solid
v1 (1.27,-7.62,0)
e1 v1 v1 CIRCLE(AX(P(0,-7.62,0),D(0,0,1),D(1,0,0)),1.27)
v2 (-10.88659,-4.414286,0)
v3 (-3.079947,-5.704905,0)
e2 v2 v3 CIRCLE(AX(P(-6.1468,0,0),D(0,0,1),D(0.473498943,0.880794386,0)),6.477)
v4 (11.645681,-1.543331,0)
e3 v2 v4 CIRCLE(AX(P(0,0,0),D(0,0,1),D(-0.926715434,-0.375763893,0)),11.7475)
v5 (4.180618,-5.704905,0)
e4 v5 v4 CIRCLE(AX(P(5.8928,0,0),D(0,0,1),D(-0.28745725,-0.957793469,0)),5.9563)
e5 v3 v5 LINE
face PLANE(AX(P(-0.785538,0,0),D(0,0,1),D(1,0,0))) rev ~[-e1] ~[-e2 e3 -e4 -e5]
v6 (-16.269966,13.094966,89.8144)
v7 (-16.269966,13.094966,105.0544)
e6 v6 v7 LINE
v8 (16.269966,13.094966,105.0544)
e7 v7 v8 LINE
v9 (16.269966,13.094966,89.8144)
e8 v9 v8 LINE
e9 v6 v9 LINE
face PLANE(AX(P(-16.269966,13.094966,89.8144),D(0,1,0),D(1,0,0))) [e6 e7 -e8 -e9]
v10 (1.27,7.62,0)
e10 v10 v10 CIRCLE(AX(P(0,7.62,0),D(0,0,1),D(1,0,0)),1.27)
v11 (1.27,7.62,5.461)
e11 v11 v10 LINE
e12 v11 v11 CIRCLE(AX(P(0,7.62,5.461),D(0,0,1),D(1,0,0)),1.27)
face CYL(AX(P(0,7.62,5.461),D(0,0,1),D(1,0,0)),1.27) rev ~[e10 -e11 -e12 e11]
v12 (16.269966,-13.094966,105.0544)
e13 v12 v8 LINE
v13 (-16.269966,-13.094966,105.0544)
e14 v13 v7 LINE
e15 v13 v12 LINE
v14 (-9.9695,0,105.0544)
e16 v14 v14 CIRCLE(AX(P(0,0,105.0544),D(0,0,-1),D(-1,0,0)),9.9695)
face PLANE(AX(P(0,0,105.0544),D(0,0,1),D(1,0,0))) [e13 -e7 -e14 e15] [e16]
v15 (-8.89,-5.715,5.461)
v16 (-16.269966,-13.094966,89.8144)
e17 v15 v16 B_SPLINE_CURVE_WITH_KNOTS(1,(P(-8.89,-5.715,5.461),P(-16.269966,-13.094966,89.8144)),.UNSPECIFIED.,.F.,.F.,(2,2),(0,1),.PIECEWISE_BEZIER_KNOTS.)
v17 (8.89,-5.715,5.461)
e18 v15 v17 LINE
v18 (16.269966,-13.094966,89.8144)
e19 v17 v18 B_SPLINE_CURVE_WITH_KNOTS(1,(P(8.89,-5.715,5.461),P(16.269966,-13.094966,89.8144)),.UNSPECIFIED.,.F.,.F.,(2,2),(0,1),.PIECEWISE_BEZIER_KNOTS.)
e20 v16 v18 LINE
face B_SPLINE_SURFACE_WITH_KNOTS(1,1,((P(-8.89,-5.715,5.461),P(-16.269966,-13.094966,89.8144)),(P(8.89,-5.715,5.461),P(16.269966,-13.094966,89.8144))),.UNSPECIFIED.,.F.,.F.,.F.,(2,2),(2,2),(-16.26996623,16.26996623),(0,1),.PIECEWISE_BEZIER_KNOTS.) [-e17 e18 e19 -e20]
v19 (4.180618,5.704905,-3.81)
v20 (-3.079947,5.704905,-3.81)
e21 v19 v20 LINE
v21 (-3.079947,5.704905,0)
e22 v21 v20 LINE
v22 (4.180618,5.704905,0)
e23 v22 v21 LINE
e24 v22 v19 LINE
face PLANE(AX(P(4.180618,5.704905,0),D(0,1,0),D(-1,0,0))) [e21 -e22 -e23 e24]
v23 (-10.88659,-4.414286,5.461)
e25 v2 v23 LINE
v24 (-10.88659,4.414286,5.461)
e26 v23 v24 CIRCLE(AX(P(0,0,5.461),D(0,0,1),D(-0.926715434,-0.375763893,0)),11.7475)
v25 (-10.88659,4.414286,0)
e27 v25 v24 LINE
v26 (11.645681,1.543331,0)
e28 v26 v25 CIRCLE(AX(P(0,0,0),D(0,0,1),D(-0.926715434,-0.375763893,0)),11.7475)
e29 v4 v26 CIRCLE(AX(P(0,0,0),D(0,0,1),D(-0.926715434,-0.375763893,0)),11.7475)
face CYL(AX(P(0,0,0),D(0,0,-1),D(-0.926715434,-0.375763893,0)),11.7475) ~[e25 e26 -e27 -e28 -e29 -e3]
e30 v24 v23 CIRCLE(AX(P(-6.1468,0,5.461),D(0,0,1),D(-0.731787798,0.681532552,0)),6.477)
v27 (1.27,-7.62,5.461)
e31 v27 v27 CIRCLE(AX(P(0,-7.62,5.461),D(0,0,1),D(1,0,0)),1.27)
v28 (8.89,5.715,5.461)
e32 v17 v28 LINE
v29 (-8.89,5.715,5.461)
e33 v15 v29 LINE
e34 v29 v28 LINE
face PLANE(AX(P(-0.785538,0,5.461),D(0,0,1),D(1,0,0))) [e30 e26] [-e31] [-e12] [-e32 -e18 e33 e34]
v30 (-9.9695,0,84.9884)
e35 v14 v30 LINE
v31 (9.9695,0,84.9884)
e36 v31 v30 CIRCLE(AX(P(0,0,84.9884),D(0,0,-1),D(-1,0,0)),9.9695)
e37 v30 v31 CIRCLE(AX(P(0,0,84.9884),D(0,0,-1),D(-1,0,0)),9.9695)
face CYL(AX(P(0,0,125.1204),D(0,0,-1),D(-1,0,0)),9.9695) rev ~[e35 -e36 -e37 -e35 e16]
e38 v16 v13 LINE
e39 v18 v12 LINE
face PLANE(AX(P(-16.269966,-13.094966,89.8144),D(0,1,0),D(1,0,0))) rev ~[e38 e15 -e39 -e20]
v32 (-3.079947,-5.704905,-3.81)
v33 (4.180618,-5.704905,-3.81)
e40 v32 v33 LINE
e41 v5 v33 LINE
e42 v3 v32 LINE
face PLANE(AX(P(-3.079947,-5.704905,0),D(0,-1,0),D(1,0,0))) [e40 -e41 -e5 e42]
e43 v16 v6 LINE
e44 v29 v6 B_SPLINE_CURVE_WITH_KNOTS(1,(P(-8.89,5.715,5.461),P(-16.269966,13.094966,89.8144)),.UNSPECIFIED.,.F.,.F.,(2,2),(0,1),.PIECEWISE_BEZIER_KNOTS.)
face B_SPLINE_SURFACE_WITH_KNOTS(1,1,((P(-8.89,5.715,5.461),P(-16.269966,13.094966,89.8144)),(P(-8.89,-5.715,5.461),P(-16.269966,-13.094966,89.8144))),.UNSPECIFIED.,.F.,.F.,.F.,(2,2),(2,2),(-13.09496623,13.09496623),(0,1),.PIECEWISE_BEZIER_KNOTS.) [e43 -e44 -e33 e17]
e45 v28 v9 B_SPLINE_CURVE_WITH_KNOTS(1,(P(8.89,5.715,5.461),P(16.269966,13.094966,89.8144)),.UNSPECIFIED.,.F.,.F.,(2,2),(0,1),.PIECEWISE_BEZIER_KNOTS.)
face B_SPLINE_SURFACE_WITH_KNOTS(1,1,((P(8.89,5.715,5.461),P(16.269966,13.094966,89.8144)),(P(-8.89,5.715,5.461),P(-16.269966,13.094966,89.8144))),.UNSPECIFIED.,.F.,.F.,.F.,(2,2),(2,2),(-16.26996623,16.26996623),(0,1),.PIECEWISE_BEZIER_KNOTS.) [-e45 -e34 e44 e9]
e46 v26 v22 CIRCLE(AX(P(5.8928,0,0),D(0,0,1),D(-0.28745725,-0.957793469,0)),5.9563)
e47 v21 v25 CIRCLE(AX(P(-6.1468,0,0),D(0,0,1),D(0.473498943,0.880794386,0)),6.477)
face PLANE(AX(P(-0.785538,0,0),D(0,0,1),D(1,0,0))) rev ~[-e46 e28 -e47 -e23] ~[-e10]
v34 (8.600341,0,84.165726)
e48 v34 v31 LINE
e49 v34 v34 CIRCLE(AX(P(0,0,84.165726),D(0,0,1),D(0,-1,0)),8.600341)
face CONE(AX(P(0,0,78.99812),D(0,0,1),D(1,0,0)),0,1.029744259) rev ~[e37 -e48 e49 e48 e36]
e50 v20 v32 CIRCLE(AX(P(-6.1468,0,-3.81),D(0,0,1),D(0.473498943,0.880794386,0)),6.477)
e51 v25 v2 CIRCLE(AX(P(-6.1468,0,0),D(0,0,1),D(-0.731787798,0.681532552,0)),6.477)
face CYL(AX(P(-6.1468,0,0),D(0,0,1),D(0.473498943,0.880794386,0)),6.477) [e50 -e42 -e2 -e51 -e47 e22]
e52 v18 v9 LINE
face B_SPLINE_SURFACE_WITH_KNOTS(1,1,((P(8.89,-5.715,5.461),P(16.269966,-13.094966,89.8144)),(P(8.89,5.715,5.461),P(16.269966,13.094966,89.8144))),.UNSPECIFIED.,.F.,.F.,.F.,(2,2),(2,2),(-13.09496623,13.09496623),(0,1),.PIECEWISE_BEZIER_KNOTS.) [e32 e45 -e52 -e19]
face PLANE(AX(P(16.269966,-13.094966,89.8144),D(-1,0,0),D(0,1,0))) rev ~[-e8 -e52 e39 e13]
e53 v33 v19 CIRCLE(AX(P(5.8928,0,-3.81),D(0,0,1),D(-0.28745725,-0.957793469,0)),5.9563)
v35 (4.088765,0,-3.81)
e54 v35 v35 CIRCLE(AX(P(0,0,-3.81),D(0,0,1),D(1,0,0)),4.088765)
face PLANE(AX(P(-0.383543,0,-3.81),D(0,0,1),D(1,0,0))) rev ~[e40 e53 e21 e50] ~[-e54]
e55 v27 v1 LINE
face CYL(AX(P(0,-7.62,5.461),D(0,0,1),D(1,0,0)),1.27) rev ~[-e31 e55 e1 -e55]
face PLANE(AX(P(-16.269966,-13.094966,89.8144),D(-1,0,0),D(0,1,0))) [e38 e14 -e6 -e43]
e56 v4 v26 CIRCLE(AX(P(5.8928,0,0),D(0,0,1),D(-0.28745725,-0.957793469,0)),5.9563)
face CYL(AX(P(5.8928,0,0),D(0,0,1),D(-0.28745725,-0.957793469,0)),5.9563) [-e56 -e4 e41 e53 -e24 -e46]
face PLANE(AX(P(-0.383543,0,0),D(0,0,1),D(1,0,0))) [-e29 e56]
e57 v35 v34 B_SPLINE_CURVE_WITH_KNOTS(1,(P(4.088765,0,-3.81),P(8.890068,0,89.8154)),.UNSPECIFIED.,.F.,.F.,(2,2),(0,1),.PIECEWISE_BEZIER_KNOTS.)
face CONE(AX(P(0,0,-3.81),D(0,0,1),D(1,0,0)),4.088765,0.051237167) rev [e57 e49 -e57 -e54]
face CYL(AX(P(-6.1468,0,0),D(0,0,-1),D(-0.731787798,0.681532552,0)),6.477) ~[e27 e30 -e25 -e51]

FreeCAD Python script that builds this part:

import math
import FreeCAD as App
import Part
import Sketcher
from FreeCAD import Vector
Q = App.Units.Quantity


def add_polygon(sketch, points):
    """Adds a closed chain of lines whose ends are joined by coincident constraints."""
    first, n = sketch.GeometryCount, len(points)
    for a, b in zip(points, points[1:] + points[:1]):
        sketch.addGeometry(Part.LineSegment(App.Vector(*a, 0), App.Vector(*b, 0)), False)
    for i in range(n):
        sketch.addConstraint(Sketcher.Constraint("Coincident", first + i, 2, first + (i + 1) % n, 1))

doc = App.newDocument("Part")
params = doc.addObject("Spreadsheet::Sheet", "Params")
for row, (alias, value) in enumerate([
    ("sketch1_radius", "0.255 in"),
    ("pad1_length", "0.15 in"),
    ("sketch2_radius", "0.255 in"),
    ("pad2_length", "0.215 in"),
    ("sketch3_diameter", "0.1 in"),
    ("sketch4_width", "0.7 in"),
    ("sketch4_height", "0.45 in"),
    ("pad3_length", "3.321 in"),
    ("pad3_taper", "5 deg"),
    ("pocket2_length", "93.6254 mm"),
    ("pocket2_taper", "2.935673 deg"),
    ("pad4_length", "0.6 in"),
    ("sketch7_diameter", "0.785 in"),
    ("hole_diameter", "0.785 in"),
    ("hole_depth", "0.79 in"),
], start=1):
    params.set(f"A{row}", alias)
    params.set(f"B{row}", "=" + value)
    params.setAlias(f"B{row}", alias)

body = doc.addObject("PartDesign::Body", "Body")

# Sketch on XY plane
sketch1 = doc.addObject("Sketcher::SketchObject", "Sketch")
body.addObject(sketch1)
sketch1.AttachmentSupport = (doc.XY_Plane, [""])
sketch1.MapMode = "FlatFace"
sketch1.addGeometry(Part.LineSegment(Vector(4, 6, 0), Vector(-3, 6, 0)), False)
sketch1.addGeometry(Part.ArcOfCircle(Part.Circle(Vector(-6, 0, 0), Vector(0, 0, 1), 6), math.radians(62), math.radians(298)), False)
sketch1.addGeometry(Part.LineSegment(Vector(-3, -6, 0), Vector(4, -6, 0)), False)
sketch1.addGeometry(Part.ArcOfCircle(Part.Circle(Vector(6, 0, 0), Vector(0, 0, 1), 6), math.radians(-107), math.radians(107)), False)
sketch1.addConstraint(Sketcher.Constraint("Coincident", 0, 2, 1, 1))
sketch1.addConstraint(Sketcher.Constraint("Coincident", 1, 2, 2, 1))
sketch1.addConstraint(Sketcher.Constraint("Coincident", 2, 2, 3, 1))
sketch1.addConstraint(Sketcher.Constraint("Coincident", 3, 2, 0, 1))
sketch1.addConstraint(Sketcher.Constraint("Horizontal", 0))
sketch1.addConstraint(Sketcher.Constraint("Horizontal", 2))
sketch1.addConstraint(Sketcher.Constraint("Symmetric", 0, 2, 1, 2, -1))
sketch1.addConstraint(Sketcher.Constraint("PointOnObject", 3, 3, -1))
sketch1.addConstraint(Sketcher.Constraint("Radius", 1, Q("0.255 in")))
sketch1.addConstraint(Sketcher.Constraint("Radius", 3, Q("0.2345 in")))
sketch1.addConstraint(Sketcher.Constraint("DistanceX", 1, 3, -1, 1, Q("0.242 in")))
sketch1.addConstraint(Sketcher.Constraint("DistanceX", -1, 1, 3, 3, Q("0.232 in")))
sketch1.addConstraint(Sketcher.Constraint("DistanceX", 0, 2, 0, 1, Q("7.260566 mm")))
sketch1.setExpression("Constraints[8]", "Params.sketch1_radius")
pad1 = doc.addObject("PartDesign::Pad", "Pad")
body.addObject(pad1)
pad1.Profile = sketch1
pad1.setExpression("Length", "Params.pad1_length")
pad1.Reversed = True

# Sketch on XY plane
sketch2 = doc.addObject("Sketcher::SketchObject", "Sketch001")
body.addObject(sketch2)
sketch2.AttachmentSupport = (doc.XY_Plane, [""])
sketch2.MapMode = "FlatFace"
sketch2.addGeometry(Part.ArcOfCircle(Part.Circle(Vector(-6, 0, 0), Vector(0, 0, 1), 6), math.radians(137), math.radians(223)), False)
sketch2.addGeometry(Part.ArcOfCircle(Part.Circle(Vector(0, 0, 0), Vector(0, 0, 1), 12), math.radians(-158), math.radians(158)), False)
sketch2.addConstraint(Sketcher.Constraint("Coincident", 0, 1, 1, 2))
sketch2.addConstraint(Sketcher.Constraint("Coincident", 1, 1, 0, 2))
sketch2.addConstraint(Sketcher.Constraint("Coincident", 1, 3, -1, 1))
sketch2.addConstraint(Sketcher.Constraint("PointOnObject", 0, 3, -1))
sketch2.addConstraint(Sketcher.Constraint("Radius", 0, Q("0.255 in")))
sketch2.addConstraint(Sketcher.Constraint("Radius", 1, Q("0.4625 in")))
sketch2.addConstraint(Sketcher.Constraint("DistanceX", 0, 3, -1, 1, Q("0.242 in")))
sketch2.setExpression("Constraints[4]", "Params.sketch2_radius")
pad2 = doc.addObject("PartDesign::Pad", "Pad001")
body.addObject(pad2)
pad2.Profile = sketch2
pad2.setExpression("Length", "Params.pad2_length")

# Sketch on XY plane
sketch3 = doc.addObject("Sketcher::SketchObject", "Sketch002")
body.addObject(sketch3)
sketch3.AttachmentSupport = (doc.XY_Plane, [""])
sketch3.MapMode = "FlatFace"
sketch3.AttachmentOffset = App.Placement(Vector(0, 0, 0.215 * 25.4), App.Rotation())
sketch3.addGeometry(Part.Circle(Vector(0, -7.6, 0), Vector(0, 0, 1), 1.3), False)
sketch3.addGeometry(Part.Circle(Vector(0, 7.6, 0), Vector(0, 0, 1), 1.3), False)
sketch3.addConstraint(Sketcher.Constraint("Equal", 0, 1))
sketch3.addConstraint(Sketcher.Constraint("Symmetric", 0, 3, 1, 3, -1, 1))
sketch3.addConstraint(Sketcher.Constraint("PointOnObject", 0, 3, -2))
sketch3.addConstraint(Sketcher.Constraint("Diameter", 0, Q("0.1 in")))
sketch3.addConstraint(Sketcher.Constraint("DistanceY", 0, 3, -1, 1, Q("0.3 in")))
sketch3.setExpression("Constraints[3]", "Params.sketch3_diameter")
pocket1 = doc.addObject("PartDesign::Pocket", "Pocket")
body.addObject(pocket1)
pocket1.Profile = sketch3
pocket1.Type = "ThroughAll"

# Sketch on XY plane
sketch4 = doc.addObject("Sketcher::SketchObject", "Sketch003")
body.addObject(sketch4)
sketch4.AttachmentSupport = (doc.XY_Plane, [""])
sketch4.MapMode = "FlatFace"
sketch4.AttachmentOffset = App.Placement(Vector(0, 0, 0.215 * 25.4), App.Rotation())
add_polygon(sketch4, [(-9, 6), (-9, -6), (9, -6), (9, 6)])  # lines 0-3
sketch4.addConstraint(Sketcher.Constraint("Vertical", 0))
sketch4.addConstraint(Sketcher.Constraint("Horizontal", 1))
sketch4.addConstraint(Sketcher.Constraint("Vertical", 2))
sketch4.addConstraint(Sketcher.Constraint("Horizontal", 3))
sketch4.addConstraint(Sketcher.Constraint("Symmetric", 0, 2, 2, 2, -1, 1))
sketch4.addConstraint(Sketcher.Constraint("DistanceX", 1, 1, 1, 2, Q("0.7 in")))
sketch4.addConstraint(Sketcher.Constraint("DistanceY", 0, 2, 0, 1, Q("0.45 in")))
sketch4.setExpression("Constraints[9]", "Params.sketch4_width")
sketch4.setExpression("Constraints[10]", "Params.sketch4_height")
pad3 = doc.addObject("PartDesign::Pad", "Pad002")
body.addObject(pad3)
pad3.Profile = sketch4
pad3.setExpression("Length", "Params.pad3_length")
pad3.setExpression("TaperAngle", "Params.pad3_taper")

# Sketch on XY plane
sketch5 = doc.addObject("Sketcher::SketchObject", "Sketch004")
body.addObject(sketch5)
sketch5.AttachmentSupport = (doc.XY_Plane, [""])
sketch5.MapMode = "FlatFace"
sketch5.AttachmentOffset = App.Placement(Vector(0, 0, -0.15 * 25.4), App.Rotation())
sketch5.addGeometry(Part.Circle(Vector(0, 0, 0), Vector(0, 0, 1), 4.1), False)
sketch5.addConstraint(Sketcher.Constraint("Coincident", 0, 3, -1, 1))
sketch5.addConstraint(Sketcher.Constraint("Diameter", 0, Q("8.17753 mm")))
pocket2 = doc.addObject("PartDesign::Pocket", "Pocket001")
body.addObject(pocket2)
pocket2.Profile = sketch5
pocket2.setExpression("Length", "Params.pocket2_length")
pocket2.Reversed = True
pocket2.setExpression("TaperAngle", "Params.pocket2_taper")

# Sketch on XY plane
sketch6 = doc.addObject("Sketcher::SketchObject", "Sketch005")
body.addObject(sketch6)
sketch6.AttachmentSupport = (doc.XY_Plane, [""])
sketch6.MapMode = "FlatFace"
sketch6.AttachmentOffset = App.Placement(Vector(0, 0, 3.536 * 25.4), App.Rotation())
add_polygon(sketch6, [(-16, 13), (-16, -13), (16, -13), (16, 13)])  # lines 0-3
sketch6.addConstraint(Sketcher.Constraint("Vertical", 0))
sketch6.addConstraint(Sketcher.Constraint("Horizontal", 1))
sketch6.addConstraint(Sketcher.Constraint("Vertical", 2))
sketch6.addConstraint(Sketcher.Constraint("Horizontal", 3))
sketch6.addConstraint(Sketcher.Constraint("Symmetric", 0, 2, 2, 2, -1, 1))
sketch6.addConstraint(Sketcher.Constraint("DistanceX", 1, 1, 1, 2, Q("32.539932 mm")))
sketch6.addConstraint(Sketcher.Constraint("DistanceY", 0, 2, 0, 1, Q("26.189932 mm")))
pad4 = doc.addObject("PartDesign::Pad", "Pad003")
body.addObject(pad4)
pad4.Profile = sketch6
pad4.setExpression("Length", "Params.pad4_length")

# Sketch on XY plane
sketch7 = doc.addObject("Sketcher::SketchObject", "Sketch006")
body.addObject(sketch7)
sketch7.AttachmentSupport = (doc.XY_Plane, [""])
sketch7.MapMode = "FlatFace"
sketch7.AttachmentOffset = App.Placement(Vector(0, 0, 4.136 * 25.4), App.Rotation())
sketch7.addGeometry(Part.Circle(Vector(0, 0, 0), Vector(0, 0, 1), 10), False)
sketch7.addConstraint(Sketcher.Constraint("Coincident", 0, 3, -1, 1))
sketch7.addConstraint(Sketcher.Constraint("Diameter", 0, Q("0.785 in")))
sketch7.setExpression("Constraints[1]", "Params.sketch7_diameter")
doc.recompute()
hole = doc.addObject("PartDesign::Hole", "Hole")
body.addObject(hole)
hole.Profile = sketch7
hole.ThreadType = "None"
hole.setExpression("Diameter", "Params.hole_diameter")
hole.DepthType = "Dimension"
hole.setExpression("Depth", "Params.hole_depth")
hole.DrillPoint = "Angled"
hole.DrillPointAngle = 118

doc.recompute()
